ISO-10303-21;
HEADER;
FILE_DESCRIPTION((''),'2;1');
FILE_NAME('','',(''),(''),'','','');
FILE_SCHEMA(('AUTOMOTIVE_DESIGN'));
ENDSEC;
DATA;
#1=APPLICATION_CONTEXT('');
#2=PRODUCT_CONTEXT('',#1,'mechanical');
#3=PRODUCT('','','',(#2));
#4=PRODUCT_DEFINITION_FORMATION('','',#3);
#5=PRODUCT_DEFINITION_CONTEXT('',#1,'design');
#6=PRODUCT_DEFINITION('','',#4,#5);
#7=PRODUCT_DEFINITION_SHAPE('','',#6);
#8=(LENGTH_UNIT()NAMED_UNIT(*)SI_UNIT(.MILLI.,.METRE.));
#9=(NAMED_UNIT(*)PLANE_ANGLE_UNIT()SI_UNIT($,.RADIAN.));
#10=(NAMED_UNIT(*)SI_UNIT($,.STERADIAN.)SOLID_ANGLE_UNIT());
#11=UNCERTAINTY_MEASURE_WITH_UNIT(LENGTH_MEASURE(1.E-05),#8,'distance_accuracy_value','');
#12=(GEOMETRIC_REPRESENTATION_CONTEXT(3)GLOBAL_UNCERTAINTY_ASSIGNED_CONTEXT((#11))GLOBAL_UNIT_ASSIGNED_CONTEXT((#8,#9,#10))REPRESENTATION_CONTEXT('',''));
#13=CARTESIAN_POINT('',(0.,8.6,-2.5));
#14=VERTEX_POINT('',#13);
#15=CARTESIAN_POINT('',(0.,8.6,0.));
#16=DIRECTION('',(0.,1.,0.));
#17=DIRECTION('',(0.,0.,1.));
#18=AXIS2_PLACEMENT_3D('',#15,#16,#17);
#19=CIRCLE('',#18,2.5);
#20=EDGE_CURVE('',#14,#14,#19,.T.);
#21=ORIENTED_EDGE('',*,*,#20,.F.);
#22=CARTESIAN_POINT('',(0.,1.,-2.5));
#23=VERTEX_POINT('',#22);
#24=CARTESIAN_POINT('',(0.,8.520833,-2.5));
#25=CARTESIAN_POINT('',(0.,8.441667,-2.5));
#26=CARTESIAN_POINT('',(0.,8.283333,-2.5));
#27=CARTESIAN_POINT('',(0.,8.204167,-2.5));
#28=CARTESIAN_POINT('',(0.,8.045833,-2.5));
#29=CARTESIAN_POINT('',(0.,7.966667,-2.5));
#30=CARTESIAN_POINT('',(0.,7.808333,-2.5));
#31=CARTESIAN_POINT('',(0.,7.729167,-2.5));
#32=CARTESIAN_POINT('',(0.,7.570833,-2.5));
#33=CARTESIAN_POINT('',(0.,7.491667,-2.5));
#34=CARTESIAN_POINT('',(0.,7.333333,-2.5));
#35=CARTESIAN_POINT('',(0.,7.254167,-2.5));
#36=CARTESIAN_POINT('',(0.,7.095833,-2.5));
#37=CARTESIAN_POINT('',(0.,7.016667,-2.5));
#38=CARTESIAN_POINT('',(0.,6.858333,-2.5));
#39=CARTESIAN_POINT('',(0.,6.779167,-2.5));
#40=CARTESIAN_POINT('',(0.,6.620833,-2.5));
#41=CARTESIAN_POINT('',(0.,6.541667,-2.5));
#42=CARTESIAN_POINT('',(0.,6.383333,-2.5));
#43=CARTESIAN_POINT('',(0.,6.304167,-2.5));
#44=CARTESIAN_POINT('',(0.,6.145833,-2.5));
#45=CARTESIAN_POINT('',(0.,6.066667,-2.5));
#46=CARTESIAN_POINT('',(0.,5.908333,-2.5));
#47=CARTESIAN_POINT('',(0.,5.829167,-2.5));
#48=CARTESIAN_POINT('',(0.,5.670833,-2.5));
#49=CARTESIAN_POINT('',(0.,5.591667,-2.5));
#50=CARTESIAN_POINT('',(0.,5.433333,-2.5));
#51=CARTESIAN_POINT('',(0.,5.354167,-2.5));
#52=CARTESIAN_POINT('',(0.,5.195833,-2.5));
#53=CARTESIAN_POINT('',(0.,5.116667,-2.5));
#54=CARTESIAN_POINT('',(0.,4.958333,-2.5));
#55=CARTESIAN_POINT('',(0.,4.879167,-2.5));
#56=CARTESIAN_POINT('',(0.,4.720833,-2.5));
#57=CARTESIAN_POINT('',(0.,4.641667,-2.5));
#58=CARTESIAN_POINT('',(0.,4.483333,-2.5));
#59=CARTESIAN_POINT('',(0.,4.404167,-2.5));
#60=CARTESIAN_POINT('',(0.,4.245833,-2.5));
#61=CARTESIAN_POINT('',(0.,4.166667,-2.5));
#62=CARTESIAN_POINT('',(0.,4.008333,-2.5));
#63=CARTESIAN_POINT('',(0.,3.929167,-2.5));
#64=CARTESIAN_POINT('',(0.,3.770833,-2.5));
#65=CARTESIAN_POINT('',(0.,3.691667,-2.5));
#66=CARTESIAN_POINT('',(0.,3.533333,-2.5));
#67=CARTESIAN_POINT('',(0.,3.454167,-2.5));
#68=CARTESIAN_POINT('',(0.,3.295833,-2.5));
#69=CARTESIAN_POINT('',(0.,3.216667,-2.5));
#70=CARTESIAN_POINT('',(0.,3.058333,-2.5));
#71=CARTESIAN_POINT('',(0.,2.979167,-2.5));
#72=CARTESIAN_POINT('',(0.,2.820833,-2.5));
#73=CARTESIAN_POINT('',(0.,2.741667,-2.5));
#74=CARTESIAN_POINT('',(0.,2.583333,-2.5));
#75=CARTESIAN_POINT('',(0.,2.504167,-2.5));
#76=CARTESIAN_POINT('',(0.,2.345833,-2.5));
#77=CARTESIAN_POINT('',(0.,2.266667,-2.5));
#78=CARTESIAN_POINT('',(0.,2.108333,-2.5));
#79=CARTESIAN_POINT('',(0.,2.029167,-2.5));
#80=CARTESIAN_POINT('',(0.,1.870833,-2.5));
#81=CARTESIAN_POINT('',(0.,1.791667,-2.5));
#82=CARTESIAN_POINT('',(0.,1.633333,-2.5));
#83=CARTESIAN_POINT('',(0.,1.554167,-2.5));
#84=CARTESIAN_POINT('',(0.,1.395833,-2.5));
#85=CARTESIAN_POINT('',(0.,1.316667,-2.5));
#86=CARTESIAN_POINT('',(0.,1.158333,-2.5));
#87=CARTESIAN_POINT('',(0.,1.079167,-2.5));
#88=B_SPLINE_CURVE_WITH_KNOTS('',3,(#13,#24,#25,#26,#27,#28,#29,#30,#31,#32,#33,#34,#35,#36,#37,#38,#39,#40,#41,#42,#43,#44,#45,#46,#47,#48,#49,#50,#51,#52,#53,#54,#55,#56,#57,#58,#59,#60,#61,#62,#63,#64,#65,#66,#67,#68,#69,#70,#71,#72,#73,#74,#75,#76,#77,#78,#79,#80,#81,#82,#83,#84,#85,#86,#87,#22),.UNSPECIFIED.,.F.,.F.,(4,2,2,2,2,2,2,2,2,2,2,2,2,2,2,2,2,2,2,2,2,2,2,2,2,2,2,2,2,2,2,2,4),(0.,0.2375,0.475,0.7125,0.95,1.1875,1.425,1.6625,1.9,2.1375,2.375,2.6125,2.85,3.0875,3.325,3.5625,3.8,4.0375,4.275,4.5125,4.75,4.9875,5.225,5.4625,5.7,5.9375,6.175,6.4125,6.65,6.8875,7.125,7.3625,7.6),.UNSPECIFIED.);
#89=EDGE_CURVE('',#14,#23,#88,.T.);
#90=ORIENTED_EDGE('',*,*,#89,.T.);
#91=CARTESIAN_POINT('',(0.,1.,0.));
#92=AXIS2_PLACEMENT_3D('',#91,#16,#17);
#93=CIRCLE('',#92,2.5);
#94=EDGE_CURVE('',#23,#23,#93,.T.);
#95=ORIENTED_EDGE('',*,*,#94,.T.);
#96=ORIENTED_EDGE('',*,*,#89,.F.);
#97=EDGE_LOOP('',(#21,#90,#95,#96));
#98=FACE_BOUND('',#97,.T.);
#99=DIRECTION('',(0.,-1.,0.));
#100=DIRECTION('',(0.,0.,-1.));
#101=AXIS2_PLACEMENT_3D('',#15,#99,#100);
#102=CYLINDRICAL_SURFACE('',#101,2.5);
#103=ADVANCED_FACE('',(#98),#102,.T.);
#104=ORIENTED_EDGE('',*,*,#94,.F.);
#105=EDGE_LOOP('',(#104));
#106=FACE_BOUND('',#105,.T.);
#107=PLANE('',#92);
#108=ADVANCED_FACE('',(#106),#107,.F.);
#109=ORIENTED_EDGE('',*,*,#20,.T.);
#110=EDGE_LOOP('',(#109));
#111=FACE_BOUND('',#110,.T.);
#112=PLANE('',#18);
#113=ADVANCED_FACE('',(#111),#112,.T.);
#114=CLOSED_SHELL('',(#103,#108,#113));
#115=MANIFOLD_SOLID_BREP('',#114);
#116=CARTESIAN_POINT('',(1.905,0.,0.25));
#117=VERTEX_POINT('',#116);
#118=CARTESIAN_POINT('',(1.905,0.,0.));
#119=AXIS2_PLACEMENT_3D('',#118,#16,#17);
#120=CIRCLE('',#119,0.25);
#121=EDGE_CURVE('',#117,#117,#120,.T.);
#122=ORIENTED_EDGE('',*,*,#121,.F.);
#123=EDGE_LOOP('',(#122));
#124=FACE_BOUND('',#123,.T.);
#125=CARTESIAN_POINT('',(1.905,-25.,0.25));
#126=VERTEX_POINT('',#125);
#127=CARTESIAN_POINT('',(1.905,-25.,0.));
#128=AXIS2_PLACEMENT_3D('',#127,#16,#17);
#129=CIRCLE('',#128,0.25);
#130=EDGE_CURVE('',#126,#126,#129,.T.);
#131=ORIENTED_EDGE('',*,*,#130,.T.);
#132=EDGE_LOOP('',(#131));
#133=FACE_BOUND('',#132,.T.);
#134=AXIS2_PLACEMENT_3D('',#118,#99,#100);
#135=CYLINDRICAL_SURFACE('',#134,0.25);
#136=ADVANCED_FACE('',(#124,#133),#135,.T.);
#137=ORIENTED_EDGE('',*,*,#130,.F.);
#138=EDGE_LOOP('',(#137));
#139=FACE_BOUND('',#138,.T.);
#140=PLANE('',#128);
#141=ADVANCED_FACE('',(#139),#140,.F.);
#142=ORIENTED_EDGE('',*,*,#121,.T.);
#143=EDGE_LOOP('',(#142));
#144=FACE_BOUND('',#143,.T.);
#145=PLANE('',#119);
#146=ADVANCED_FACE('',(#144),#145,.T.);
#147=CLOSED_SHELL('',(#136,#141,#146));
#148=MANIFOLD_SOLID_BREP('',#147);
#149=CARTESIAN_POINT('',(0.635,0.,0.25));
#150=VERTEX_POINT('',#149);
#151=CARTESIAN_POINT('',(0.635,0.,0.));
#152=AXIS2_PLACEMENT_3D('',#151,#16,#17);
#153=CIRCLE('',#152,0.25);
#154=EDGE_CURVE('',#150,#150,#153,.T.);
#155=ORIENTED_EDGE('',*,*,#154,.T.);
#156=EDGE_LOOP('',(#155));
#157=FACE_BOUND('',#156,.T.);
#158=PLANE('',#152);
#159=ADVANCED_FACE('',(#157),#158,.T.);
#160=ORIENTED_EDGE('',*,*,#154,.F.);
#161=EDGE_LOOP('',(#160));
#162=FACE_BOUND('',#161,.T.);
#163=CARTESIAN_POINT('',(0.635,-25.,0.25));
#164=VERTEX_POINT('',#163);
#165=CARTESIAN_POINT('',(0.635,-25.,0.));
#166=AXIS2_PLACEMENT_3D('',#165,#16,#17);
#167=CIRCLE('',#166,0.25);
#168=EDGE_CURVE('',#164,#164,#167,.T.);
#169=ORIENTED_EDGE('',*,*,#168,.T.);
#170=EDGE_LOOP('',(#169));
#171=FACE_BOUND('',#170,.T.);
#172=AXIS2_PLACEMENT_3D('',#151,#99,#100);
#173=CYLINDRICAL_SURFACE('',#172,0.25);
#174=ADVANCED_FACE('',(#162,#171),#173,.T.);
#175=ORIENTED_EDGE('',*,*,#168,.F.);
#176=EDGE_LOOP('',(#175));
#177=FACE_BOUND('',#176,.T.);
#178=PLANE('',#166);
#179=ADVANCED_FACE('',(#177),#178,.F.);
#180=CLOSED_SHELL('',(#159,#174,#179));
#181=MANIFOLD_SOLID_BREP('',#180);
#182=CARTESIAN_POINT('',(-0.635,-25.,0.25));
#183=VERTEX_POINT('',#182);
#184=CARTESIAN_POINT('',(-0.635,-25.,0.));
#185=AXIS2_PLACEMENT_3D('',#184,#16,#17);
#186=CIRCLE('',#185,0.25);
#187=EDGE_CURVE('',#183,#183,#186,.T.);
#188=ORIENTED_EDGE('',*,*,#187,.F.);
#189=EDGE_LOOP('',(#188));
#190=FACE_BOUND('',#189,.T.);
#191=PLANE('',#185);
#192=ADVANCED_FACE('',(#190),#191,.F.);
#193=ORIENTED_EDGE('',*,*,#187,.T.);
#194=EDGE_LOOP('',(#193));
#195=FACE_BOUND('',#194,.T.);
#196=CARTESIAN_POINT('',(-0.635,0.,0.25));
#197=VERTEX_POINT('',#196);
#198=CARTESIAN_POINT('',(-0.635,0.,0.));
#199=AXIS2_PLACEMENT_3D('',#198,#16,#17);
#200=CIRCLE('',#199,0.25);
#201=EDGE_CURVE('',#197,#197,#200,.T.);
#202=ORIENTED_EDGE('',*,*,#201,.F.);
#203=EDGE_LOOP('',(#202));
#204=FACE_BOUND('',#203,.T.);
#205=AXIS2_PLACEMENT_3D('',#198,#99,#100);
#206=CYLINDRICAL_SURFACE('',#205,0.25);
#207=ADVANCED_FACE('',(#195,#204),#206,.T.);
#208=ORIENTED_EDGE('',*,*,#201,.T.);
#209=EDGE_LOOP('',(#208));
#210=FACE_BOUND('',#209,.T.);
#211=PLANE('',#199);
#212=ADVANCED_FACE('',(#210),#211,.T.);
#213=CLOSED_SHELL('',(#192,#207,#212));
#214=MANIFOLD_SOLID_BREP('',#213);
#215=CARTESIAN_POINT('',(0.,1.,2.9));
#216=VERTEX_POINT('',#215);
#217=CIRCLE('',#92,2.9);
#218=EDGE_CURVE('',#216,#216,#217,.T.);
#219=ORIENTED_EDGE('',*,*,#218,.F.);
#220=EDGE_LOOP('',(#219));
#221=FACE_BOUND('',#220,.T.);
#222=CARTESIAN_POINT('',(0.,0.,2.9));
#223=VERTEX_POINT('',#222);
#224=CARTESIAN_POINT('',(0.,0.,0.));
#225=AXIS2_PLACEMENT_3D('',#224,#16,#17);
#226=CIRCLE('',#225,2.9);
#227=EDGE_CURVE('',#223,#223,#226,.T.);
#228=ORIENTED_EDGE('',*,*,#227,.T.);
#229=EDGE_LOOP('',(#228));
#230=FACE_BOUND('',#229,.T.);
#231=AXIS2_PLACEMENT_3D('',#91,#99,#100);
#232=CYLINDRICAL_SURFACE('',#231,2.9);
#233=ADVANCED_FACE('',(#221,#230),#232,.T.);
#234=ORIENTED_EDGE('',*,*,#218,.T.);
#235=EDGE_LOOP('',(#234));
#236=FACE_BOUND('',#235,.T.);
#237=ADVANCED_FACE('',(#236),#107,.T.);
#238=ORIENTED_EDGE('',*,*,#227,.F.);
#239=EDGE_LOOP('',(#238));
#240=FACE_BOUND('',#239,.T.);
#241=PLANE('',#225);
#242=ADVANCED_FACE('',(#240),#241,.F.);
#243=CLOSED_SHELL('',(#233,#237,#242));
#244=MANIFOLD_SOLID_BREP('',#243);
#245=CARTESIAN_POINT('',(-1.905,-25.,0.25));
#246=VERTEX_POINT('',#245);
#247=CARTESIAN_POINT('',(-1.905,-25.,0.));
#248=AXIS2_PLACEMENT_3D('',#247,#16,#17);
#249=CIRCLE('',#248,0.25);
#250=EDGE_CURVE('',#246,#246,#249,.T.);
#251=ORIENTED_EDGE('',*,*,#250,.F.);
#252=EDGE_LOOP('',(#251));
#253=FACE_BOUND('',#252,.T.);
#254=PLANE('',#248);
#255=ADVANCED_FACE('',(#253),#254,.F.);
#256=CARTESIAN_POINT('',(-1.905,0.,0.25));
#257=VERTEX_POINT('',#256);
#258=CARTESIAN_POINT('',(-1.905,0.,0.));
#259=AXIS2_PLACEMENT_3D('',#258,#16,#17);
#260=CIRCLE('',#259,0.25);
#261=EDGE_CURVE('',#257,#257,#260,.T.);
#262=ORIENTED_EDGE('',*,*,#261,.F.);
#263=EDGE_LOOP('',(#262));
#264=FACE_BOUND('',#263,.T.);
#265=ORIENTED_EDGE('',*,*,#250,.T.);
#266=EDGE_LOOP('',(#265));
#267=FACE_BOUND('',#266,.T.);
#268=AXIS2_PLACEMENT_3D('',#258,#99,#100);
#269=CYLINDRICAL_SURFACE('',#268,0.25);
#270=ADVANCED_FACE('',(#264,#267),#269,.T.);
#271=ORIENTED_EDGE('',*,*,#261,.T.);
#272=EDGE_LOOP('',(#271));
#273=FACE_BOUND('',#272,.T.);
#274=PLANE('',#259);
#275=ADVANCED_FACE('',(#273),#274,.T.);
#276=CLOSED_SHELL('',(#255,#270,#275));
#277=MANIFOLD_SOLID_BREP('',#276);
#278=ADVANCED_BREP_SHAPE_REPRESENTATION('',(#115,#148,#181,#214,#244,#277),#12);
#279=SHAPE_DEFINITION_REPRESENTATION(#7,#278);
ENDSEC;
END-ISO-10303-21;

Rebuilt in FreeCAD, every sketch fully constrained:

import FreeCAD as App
import Part
import Sketcher
Q = App.Units.Quantity

doc = App.newDocument("Part")
body = doc.addObject("PartDesign::Body", "Body")

# Sketch on XZ plane
sketch1 = body.newObject("Sketcher::SketchObject", "Sketch")
sketch1.AttachmentSupport = (doc.getObject("XZ_Plane"), [""])
sketch1.MapMode = "FlatFace"
sketch1.AttachmentOffset = App.Placement(App.Vector(0, 0, 25), App.Rotation())
sketch1.addGeometry(Part.Circle(App.Vector(-1.91, 0, 0), App.Vector(0, 0, 1), 0.25), False)
sketch1.addConstraint([
    Sketcher.Constraint("PointOnObject", 0, 3, -1),
    Sketcher.Constraint("Diameter", 0, Q("0.5 mm")),
    Sketcher.Constraint("DistanceX", 0, 3, -1, 1, Q("1.905 mm")),
])
pad1 = body.newObject("PartDesign::Pad", "Pad")
pad1.Profile = sketch1
pad1.Length = 25
pad1.Reversed = True
body2 = doc.addObject("PartDesign::Body", "Body001")

# Sketch on XZ plane
sketch2 = body2.newObject("Sketcher::SketchObject", "Sketch001")
sketch2.AttachmentSupport = (doc.getObject("XZ_Plane001"), [""])
sketch2.MapMode = "FlatFace"
sketch2.AttachmentOffset = App.Placement(App.Vector(0, 0, 25), App.Rotation())
sketch2.addGeometry(Part.Circle(App.Vector(-0.64, 0, 0), App.Vector(0, 0, 1), 0.25), False)
sketch2.addConstraint([
    Sketcher.Constraint("PointOnObject", 0, 3, -1),
    Sketcher.Constraint("Diameter", 0, Q("0.5 mm")),
    Sketcher.Constraint("DistanceX", 0, 3, -1, 1, Q("0.635 mm")),
])
pad2 = body2.newObject("PartDesign::Pad", "Pad001")
pad2.Profile = sketch2
pad2.Length = 25
pad2.Reversed = True
body3 = doc.addObject("PartDesign::Body", "Body002")

# Sketch on XZ plane
sketch3 = body3.newObject("Sketcher::SketchObject", "Sketch002")
sketch3.AttachmentSupport = (doc.getObject("XZ_Plane002"), [""])
sketch3.MapMode = "FlatFace"
sketch3.AttachmentOffset = App.Placement(App.Vector(0, 0, 25), App.Rotation())
sketch3.addGeometry(Part.Circle(App.Vector(0.64, 0, 0), App.Vector(0, 0, 1), 0.25), False)
sketch3.addConstraint([
    Sketcher.Constraint("PointOnObject", 0, 3, -1),
    Sketcher.Constraint("Diameter", 0, Q("0.5 mm")),
    Sketcher.Constraint("DistanceX", -1, 1, 0, 3, Q("0.635 mm")),
])
pad3 = body3.newObject("PartDesign::Pad", "Pad002")
pad3.Profile = sketch3
pad3.Length = 25
pad3.Reversed = True
body4 = doc.addObject("PartDesign::Body", "Body003")

# Sketch on XZ plane
sketch4 = body4.newObject("Sketcher::SketchObject", "Sketch003")
sketch4.AttachmentSupport = (doc.getObject("XZ_Plane003"), [""])
sketch4.MapMode = "FlatFace"
sketch4.AttachmentOffset = App.Placement(App.Vector(0, 0, 25), App.Rotation())
sketch4.addGeometry(Part.Circle(App.Vector(1.91, 0, 0), App.Vector(0, 0, 1), 0.25), False)
sketch4.addConstraint([
    Sketcher.Constraint("PointOnObject", 0, 3, -1),
    Sketcher.Constraint("Diameter", 0, Q("0.5 mm")),
    Sketcher.Constraint("DistanceX", -1, 1, 0, 3, Q("1.905 mm")),
])
pad4 = body4.newObject("PartDesign::Pad", "Pad003")
pad4.Profile = sketch4
pad4.Length = 25
pad4.Reversed = True
body5 = doc.addObject("PartDesign::Body", "Body004")

# Sketch on XZ plane
sketch5 = body5.newObject("Sketcher::SketchObject", "Sketch004")
sketch5.AttachmentSupport = (doc.getObject("XZ_Plane004"), [""])
sketch5.MapMode = "FlatFace"
sketch5.addGeometry(Part.Circle(App.Vector(0, 0, 0), App.Vector(0, 0, 1), 2.9), False)
sketch5.addConstraint([
    Sketcher.Constraint("Coincident", 0, 3, -1, 1),
    Sketcher.Constraint("Diameter", 0, Q("5.8 mm")),
])
pad5 = body5.newObject("PartDesign::Pad", "Pad004")
pad5.Profile = sketch5
pad5.Length = 1
pad5.Reversed = True
body6 = doc.addObject("PartDesign::Body", "Body005")

# Sketch on XZ plane
sketch6 = body6.newObject("Sketcher::SketchObject", "Sketch005")
sketch6.AttachmentSupport = (doc.getObject("XZ_Plane005"), [""])
sketch6.MapMode = "FlatFace"
sketch6.AttachmentOffset = App.Placement(App.Vector(0, 0, -1), App.Rotation())
sketch6.addGeometry(Part.Circle(App.Vector(0, 0, 0), App.Vector(0, 0, 1), 2.5), False)
sketch6.addConstraint([
    Sketcher.Constraint("Coincident", 0, 3, -1, 1),
    Sketcher.Constraint("Diameter", 0, Q("5 mm")),
])
pad6 = body6.newObject("PartDesign::Pad", "Pad005")
pad6.Profile = sketch6
pad6.Length = 7.6
pad6.Reversed = True

doc.recompute()
